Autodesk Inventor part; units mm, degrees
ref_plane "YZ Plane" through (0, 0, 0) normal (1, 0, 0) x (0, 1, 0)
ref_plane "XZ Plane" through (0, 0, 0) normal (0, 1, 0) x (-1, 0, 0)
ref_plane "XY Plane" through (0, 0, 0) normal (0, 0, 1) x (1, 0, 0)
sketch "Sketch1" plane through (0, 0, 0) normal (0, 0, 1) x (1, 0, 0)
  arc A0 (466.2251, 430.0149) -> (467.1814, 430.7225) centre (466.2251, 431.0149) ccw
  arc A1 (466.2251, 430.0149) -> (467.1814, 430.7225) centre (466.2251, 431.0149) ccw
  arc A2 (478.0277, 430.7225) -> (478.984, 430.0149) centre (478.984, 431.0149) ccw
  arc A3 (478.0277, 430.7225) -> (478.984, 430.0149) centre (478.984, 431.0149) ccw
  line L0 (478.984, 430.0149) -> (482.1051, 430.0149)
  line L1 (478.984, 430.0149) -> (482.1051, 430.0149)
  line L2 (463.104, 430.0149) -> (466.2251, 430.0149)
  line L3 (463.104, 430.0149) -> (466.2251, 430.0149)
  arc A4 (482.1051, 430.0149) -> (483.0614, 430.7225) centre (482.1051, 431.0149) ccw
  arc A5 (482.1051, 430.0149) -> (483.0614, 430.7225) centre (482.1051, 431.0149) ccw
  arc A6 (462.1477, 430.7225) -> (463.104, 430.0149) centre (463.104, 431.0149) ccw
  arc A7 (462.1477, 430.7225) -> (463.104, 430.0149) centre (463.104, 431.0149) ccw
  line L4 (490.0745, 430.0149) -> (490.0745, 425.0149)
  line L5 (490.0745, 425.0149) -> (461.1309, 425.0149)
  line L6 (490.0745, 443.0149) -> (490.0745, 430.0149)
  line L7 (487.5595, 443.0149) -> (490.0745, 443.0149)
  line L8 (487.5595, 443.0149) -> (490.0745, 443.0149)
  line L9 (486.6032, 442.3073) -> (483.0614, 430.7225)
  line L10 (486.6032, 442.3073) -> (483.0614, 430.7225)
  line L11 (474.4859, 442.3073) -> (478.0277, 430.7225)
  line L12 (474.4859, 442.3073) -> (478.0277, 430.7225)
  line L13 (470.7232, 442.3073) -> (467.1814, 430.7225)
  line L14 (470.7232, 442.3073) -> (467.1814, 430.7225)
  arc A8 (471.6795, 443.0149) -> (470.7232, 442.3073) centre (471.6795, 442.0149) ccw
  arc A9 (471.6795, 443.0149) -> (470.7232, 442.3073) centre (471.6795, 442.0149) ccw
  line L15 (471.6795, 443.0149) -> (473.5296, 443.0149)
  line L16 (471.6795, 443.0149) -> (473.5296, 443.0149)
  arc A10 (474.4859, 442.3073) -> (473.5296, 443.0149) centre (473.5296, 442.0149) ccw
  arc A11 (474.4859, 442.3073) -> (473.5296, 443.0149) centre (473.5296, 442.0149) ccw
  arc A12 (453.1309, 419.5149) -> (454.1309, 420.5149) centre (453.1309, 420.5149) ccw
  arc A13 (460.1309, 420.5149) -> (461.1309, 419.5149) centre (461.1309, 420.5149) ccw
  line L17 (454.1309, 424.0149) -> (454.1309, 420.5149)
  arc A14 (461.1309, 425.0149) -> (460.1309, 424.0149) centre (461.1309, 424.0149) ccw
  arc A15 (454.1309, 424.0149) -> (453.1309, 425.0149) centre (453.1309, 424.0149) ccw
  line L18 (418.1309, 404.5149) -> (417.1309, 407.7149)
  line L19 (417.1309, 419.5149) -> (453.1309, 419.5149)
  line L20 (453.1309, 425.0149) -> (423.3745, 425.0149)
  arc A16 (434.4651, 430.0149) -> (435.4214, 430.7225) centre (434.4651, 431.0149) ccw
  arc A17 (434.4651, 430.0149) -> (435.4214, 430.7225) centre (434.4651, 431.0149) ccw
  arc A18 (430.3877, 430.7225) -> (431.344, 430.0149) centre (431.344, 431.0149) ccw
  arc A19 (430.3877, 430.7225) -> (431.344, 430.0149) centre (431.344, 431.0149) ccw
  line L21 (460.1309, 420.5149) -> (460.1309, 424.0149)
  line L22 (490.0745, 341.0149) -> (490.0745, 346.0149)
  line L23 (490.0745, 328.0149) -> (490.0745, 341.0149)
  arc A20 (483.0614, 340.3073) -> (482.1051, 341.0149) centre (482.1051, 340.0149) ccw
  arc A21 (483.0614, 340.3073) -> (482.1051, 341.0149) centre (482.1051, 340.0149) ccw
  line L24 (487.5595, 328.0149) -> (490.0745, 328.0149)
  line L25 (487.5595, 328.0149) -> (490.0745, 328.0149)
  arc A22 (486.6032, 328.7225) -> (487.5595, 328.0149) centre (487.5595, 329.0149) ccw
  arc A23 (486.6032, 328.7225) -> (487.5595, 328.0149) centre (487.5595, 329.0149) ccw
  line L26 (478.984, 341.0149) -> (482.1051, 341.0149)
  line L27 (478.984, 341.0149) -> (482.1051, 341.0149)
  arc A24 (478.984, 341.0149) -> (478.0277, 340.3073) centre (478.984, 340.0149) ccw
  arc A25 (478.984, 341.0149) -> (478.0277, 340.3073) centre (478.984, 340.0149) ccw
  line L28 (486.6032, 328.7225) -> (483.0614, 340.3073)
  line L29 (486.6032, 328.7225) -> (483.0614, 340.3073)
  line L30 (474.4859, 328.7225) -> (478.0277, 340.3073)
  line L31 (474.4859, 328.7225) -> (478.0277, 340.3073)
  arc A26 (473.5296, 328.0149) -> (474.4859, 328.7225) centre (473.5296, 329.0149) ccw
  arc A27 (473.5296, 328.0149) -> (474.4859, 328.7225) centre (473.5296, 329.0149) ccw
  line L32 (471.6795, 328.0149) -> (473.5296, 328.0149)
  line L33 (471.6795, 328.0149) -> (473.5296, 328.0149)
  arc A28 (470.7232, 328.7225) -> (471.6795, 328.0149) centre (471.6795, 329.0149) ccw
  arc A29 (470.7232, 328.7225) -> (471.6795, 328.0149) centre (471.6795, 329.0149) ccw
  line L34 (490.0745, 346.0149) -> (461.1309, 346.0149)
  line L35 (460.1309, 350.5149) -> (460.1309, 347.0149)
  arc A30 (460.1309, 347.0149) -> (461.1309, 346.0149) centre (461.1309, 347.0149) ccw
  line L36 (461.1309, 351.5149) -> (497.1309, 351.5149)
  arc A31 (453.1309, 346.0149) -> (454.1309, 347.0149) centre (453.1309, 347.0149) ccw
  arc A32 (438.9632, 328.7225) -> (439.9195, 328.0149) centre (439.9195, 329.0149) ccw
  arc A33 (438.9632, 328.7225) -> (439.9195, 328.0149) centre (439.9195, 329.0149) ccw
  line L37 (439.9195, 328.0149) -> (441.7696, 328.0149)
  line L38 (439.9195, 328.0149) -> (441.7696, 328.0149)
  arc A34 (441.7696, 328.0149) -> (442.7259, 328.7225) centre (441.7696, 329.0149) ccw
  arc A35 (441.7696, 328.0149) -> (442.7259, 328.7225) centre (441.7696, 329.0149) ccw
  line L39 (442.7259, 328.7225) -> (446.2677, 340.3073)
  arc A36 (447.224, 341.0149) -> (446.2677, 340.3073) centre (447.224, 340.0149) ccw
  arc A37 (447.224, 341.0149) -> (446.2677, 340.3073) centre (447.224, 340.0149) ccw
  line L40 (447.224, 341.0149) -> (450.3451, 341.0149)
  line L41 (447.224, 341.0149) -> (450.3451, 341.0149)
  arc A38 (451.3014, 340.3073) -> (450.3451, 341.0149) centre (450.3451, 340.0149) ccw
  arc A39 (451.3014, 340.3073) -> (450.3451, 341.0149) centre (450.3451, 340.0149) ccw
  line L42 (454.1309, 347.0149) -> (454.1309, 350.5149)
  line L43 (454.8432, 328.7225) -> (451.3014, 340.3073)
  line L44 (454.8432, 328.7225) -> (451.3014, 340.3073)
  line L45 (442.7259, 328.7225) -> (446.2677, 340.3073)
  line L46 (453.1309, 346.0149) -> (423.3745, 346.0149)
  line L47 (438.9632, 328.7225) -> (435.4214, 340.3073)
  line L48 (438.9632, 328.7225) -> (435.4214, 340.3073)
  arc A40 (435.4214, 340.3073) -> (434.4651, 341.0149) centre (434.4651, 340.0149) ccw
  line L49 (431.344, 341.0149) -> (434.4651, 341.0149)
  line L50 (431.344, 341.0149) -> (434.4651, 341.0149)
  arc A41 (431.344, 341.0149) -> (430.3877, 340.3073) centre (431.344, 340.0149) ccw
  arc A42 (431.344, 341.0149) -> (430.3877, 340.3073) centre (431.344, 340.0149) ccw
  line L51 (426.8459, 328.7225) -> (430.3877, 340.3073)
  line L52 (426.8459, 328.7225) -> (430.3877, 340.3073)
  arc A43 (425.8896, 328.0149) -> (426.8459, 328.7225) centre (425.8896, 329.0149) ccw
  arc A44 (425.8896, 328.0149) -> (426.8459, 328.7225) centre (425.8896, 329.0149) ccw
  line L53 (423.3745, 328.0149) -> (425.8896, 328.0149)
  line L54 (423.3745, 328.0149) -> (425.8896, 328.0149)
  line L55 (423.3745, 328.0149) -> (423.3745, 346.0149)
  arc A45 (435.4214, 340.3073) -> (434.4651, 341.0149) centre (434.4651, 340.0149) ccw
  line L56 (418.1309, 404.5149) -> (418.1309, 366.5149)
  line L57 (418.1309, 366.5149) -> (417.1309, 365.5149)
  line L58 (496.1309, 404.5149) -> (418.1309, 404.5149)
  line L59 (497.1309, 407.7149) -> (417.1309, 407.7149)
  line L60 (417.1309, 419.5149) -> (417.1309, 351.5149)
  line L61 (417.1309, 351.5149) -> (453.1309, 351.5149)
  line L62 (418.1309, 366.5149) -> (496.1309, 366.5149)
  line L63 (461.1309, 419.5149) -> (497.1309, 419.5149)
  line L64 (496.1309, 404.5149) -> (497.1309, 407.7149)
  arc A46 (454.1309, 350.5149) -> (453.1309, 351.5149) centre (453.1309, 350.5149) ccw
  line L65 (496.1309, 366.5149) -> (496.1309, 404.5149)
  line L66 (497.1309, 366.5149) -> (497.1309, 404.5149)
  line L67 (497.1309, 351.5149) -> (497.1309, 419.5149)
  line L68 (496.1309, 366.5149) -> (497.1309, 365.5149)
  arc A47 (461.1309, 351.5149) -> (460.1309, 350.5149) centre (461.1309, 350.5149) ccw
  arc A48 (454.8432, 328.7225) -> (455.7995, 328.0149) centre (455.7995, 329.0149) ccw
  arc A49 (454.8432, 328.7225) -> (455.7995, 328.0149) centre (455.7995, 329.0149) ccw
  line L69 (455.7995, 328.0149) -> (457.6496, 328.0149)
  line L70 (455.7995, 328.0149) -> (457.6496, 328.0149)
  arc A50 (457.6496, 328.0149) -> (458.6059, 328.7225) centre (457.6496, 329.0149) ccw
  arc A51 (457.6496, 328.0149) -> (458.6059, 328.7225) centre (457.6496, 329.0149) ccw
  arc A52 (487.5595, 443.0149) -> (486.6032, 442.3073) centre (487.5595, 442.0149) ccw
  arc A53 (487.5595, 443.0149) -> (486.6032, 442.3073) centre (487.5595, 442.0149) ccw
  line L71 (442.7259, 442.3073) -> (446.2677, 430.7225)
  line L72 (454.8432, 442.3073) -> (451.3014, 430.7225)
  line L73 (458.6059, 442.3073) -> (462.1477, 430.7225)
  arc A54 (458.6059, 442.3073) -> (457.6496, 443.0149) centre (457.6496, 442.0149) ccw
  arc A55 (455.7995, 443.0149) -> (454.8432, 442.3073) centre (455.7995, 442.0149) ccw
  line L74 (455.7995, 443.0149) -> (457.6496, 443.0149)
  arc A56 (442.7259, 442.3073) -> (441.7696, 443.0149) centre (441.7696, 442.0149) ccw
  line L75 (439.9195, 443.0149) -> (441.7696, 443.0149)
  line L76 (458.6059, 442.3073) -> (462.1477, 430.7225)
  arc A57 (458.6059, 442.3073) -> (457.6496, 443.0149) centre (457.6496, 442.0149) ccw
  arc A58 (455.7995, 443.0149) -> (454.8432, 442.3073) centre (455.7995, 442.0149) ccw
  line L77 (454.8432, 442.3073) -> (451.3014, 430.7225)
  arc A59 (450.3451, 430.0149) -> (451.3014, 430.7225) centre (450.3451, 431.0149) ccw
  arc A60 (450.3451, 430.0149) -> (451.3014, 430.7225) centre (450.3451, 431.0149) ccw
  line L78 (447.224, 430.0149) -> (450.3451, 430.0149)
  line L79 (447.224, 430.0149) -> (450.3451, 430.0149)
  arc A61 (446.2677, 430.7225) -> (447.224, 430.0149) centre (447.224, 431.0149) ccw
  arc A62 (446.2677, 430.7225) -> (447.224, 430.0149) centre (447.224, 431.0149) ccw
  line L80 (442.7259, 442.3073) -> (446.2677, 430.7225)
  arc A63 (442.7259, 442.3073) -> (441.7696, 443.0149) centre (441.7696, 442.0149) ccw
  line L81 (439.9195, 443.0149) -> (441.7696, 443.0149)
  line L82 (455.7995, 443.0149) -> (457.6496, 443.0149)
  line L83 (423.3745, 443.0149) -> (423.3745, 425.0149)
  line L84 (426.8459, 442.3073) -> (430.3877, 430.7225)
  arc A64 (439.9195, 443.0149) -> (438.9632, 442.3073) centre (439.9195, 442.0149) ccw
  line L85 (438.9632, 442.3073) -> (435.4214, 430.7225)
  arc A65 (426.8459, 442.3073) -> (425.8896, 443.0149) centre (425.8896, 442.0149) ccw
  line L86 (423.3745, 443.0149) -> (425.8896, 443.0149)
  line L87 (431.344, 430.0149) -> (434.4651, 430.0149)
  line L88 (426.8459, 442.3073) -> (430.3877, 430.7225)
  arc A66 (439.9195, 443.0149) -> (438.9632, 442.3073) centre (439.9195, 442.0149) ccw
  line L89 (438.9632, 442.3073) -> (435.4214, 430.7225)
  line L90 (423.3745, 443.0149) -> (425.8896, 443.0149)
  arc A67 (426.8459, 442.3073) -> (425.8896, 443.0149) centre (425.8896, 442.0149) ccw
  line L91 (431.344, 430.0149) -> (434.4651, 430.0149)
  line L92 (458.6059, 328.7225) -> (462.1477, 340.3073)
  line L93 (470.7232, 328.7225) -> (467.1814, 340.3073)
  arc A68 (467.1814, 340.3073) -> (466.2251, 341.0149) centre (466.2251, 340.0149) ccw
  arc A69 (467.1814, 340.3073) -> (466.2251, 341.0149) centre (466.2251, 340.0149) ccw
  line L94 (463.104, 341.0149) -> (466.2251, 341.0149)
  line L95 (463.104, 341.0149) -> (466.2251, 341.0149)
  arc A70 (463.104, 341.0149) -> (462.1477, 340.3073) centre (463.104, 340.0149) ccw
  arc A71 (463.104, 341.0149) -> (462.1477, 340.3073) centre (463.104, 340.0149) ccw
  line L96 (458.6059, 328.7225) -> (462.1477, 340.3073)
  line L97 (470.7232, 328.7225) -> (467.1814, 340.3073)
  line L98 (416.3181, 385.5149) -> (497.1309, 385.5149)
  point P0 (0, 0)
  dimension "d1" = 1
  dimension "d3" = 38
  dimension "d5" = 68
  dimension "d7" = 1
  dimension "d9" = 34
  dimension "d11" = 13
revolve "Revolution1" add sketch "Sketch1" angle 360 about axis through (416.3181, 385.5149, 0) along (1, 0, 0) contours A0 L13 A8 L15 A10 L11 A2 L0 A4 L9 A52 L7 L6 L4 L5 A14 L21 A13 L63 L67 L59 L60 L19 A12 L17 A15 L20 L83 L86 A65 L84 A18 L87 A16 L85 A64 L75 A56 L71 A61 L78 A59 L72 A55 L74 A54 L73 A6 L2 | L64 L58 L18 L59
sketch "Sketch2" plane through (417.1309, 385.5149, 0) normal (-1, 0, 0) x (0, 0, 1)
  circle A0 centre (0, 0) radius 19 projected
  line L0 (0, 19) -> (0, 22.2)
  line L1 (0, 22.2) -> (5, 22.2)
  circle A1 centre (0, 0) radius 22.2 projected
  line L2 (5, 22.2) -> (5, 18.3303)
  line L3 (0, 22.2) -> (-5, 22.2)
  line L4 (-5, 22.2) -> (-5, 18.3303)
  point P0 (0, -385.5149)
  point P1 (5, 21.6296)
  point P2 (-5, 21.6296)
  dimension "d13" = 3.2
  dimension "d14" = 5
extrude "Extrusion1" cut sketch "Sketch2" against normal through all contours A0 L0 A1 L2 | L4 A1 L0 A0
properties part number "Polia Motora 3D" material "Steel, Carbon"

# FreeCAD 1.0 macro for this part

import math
import FreeCAD as App
import Part
import Sketcher

V = App.Vector
Q = App.Units.Quantity

doc = App.newDocument("Part")
body = doc.addObject("PartDesign::Body", "Body")

# Sketch on XY plane
sketch1 = doc.addObject("Sketcher::SketchObject", "Sketch")
body.addObject(sketch1)
sketch1.AttachmentSupport = (doc.XY_Plane, [""])
sketch1.MapMode = "FlatFace"
sketch1.addGeometry(Part.ArcOfCircle(Part.Circle(V(466.2251, 431.0149, 0), V(0, 0, 1), 1), math.radians(-90), math.radians(-17.00163)), False)
sketch1.addGeometry(Part.LineSegment(V(466.2251, 430.0149, 0), V(463.104, 430.0149, 0)), False)
sketch1.addGeometry(Part.ArcOfCircle(Part.Circle(V(463.104, 431.0149, 0), V(0, 0, 1), 1.000004), math.radians(-162.99837), math.radians(-90)), False)
sketch1.addGeometry(Part.LineSegment(V(462.1477, 430.7225, 0), V(458.6059, 442.3073, 0)), False)
sketch1.addGeometry(Part.ArcOfCircle(Part.Circle(V(457.6496, 442.0149, 0), V(0, 0, 1), 1.000004), math.radians(17.00163), math.radians(90)), False)
sketch1.addGeometry(Part.LineSegment(V(457.6496, 443.0149, 0), V(455.7995, 443.0149, 0)), False)
sketch1.addGeometry(Part.ArcOfCircle(Part.Circle(V(455.7995, 442.0149, 0), V(0, 0, 1), 1), math.radians(90), math.radians(162.99837)), False)
sketch1.addGeometry(Part.LineSegment(V(454.8432, 442.3073, 0), V(451.3014, 430.7225, 0)), False)
sketch1.addGeometry(Part.ArcOfCircle(Part.Circle(V(450.3451, 431.0149, 0), V(0, 0, 1), 1), math.radians(-90), math.radians(-17.00163)), False)
sketch1.addGeometry(Part.LineSegment(V(450.3451, 430.0149, 0), V(447.224, 430.0149, 0)), False)
sketch1.addGeometry(Part.ArcOfCircle(Part.Circle(V(447.224, 431.0149, 0), V(0, 0, 1), 1.000004), math.radians(-162.99837), math.radians(-90)), False)
sketch1.addGeometry(Part.LineSegment(V(446.2677, 430.7225, 0), V(442.7259, 442.3073, 0)), False)
sketch1.addGeometry(Part.ArcOfCircle(Part.Circle(V(441.7696, 442.0149, 0), V(0, 0, 1), 1.000004), math.radians(17.00163), math.radians(90)), False)
sketch1.addGeometry(Part.LineSegment(V(441.7696, 443.0149, 0), V(439.9195, 443.0149, 0)), False)
sketch1.addGeometry(Part.ArcOfCircle(Part.Circle(V(439.9195, 442.0149, 0), V(0, 0, 1), 1), math.radians(90), math.radians(162.99837)), False)
sketch1.addGeometry(Part.LineSegment(V(438.9632, 442.3073, 0), V(435.4214, 430.7225, 0)), False)
sketch1.addGeometry(Part.ArcOfCircle(Part.Circle(V(434.4651, 431.0149, 0), V(0, 0, 1), 1), math.radians(-90), math.radians(-17.00163)), False)
sketch1.addGeometry(Part.LineSegment(V(434.4651, 430.0149, 0), V(431.344, 430.0149, 0)), False)
sketch1.addGeometry(Part.ArcOfCircle(Part.Circle(V(431.344, 431.0149, 0), V(0, 0, 1), 1.000004), math.radians(-162.99837), math.radians(-90)), False)
sketch1.addGeometry(Part.LineSegment(V(430.3877, 430.7225, 0), V(426.8459, 442.3073, 0)), False)
sketch1.addGeometry(Part.ArcOfCircle(Part.Circle(V(425.8896, 442.0149, 0), V(0, 0, 1), 1.000004), math.radians(17.00163), math.radians(90)), False)
sketch1.addGeometry(Part.LineSegment(V(425.8896, 443.0149, 0), V(423.3745, 443.0149, 0)), False)
sketch1.addGeometry(Part.LineSegment(V(423.3745, 443.0149, 0), V(423.3745, 425.0149, 0)), False)
sketch1.addGeometry(Part.LineSegment(V(423.3745, 425.0149, 0), V(453.1309, 425.0149, 0)), False)
sketch1.addGeometry(Part.ArcOfCircle(Part.Circle(V(453.1309, 424.0149, 0), V(0, 0, 1), 1), math.radians(0), math.radians(90)), False)
sketch1.addGeometry(Part.LineSegment(V(454.1309, 424.0149, 0), V(454.1309, 420.5149, 0)), False)
sketch1.addGeometry(Part.ArcOfCircle(Part.Circle(V(453.1309, 420.5149, 0), V(0, 0, 1), 1), math.radians(-90), math.radians(0)), False)
sketch1.addGeometry(Part.LineSegment(V(453.1309, 419.5149, 0), V(417.1309, 419.5149, 0)), False)
sketch1.addGeometry(Part.LineSegment(V(417.1309, 419.5149, 0), V(417.1309, 407.7149, 0)), False)
sketch1.addGeometry(Part.LineSegment(V(417.1309, 407.7149, 0), V(418.1309, 404.5149, 0)), False)
sketch1.addGeometry(Part.LineSegment(V(418.1309, 404.5149, 0), V(496.1309, 404.5149, 0)), False)
sketch1.addGeometry(Part.LineSegment(V(496.1309, 404.5149, 0), V(497.1309, 407.7149, 0)), False)
sketch1.addGeometry(Part.LineSegment(V(497.1309, 407.7149, 0), V(497.1309, 419.5149, 0)), False)
sketch1.addGeometry(Part.LineSegment(V(497.1309, 419.5149, 0), V(461.1309, 419.5149, 0)), False)
sketch1.addGeometry(Part.ArcOfCircle(Part.Circle(V(461.1309, 420.5149, 0), V(0, 0, 1), 1), math.radians(180), math.radians(270)), False)
sketch1.addGeometry(Part.LineSegment(V(460.1309, 420.5149, 0), V(460.1309, 424.0149, 0)), False)
sketch1.addGeometry(Part.ArcOfCircle(Part.Circle(V(461.1309, 424.0149, 0), V(0, 0, 1), 1), math.radians(90), math.radians(180)), False)
sketch1.addGeometry(Part.LineSegment(V(461.1309, 425.0149, 0), V(490.0745, 425.0149, 0)), False)
sketch1.addGeometry(Part.LineSegment(V(490.0745, 425.0149, 0), V(490.0745, 443.0149, 0)), False)
sketch1.addGeometry(Part.LineSegment(V(490.0745, 443.0149, 0), V(487.5595, 443.0149, 0)), False)
sketch1.addGeometry(Part.ArcOfCircle(Part.Circle(V(487.5595, 442.0149, 0), V(0, 0, 1), 1), math.radians(90), math.radians(162.99837)), False)
sketch1.addGeometry(Part.LineSegment(V(486.6032, 442.3073, 0), V(483.0614, 430.7225, 0)), False)
sketch1.addGeometry(Part.ArcOfCircle(Part.Circle(V(482.1051, 431.0149, 0), V(0, 0, 1), 1), math.radians(-90), math.radians(-17.00163)), False)
sketch1.addGeometry(Part.LineSegment(V(482.1051, 430.0149, 0), V(478.984, 430.0149, 0)), False)
sketch1.addGeometry(Part.ArcOfCircle(Part.Circle(V(478.984, 431.0149, 0), V(0, 0, 1), 1.000004), math.radians(-162.99837), math.radians(-90)), False)
sketch1.addGeometry(Part.LineSegment(V(478.0277, 430.7225, 0), V(474.4859, 442.3073, 0)), False)
sketch1.addGeometry(Part.ArcOfCircle(Part.Circle(V(473.5296, 442.0149, 0), V(0, 0, 1), 1.000004), math.radians(17.00163), math.radians(90)), False)
sketch1.addGeometry(Part.LineSegment(V(473.5296, 443.0149, 0), V(471.6795, 443.0149, 0)), False)
sketch1.addGeometry(Part.ArcOfCircle(Part.Circle(V(471.6795, 442.0149, 0), V(0, 0, 1), 1), math.radians(90), math.radians(162.99837)), False)
sketch1.addGeometry(Part.LineSegment(V(470.7232, 442.3073, 0), V(467.1814, 430.7225, 0)), False)
sketch1.addGeometry(Part.LineSegment(V(417.1309, 385.5149, 0), V(497.1309, 385.5149, 0)), True)  # axis
sketch1.addConstraint(Sketcher.Constraint("Tangent", 0, 1, 1, 1))
sketch1.addConstraint(Sketcher.Constraint("Tangent", 1, 2, 2, 2))
sketch1.addConstraint(Sketcher.Constraint("Tangent", 2, 1, 3, 1))
sketch1.addConstraint(Sketcher.Constraint("Tangent", 3, 2, 4, 1))
sketch1.addConstraint(Sketcher.Constraint("Tangent", 4, 2, 5, 1))
sketch1.addConstraint(Sketcher.Constraint("Tangent", 5, 2, 6, 1))
sketch1.addConstraint(Sketcher.Constraint("Tangent", 6, 2, 7, 1))
sketch1.addConstraint(Sketcher.Constraint("Tangent", 7, 2, 8, 2))
sketch1.addConstraint(Sketcher.Constraint("Tangent", 8, 1, 9, 1))
sketch1.addConstraint(Sketcher.Constraint("Tangent", 9, 2, 10, 2))
sketch1.addConstraint(Sketcher.Constraint("Tangent", 10, 1, 11, 1))
sketch1.addConstraint(Sketcher.Constraint("Tangent", 11, 2, 12, 1))
sketch1.addConstraint(Sketcher.Constraint("Tangent", 12, 2, 13, 1))
sketch1.addConstraint(Sketcher.Constraint("Tangent", 13, 2, 14, 1))
sketch1.addConstraint(Sketcher.Constraint("Tangent", 14, 2, 15, 1))
sketch1.addConstraint(Sketcher.Constraint("Tangent", 15, 2, 16, 2))
sketch1.addConstraint(Sketcher.Constraint("Tangent", 16, 1, 17, 1))
sketch1.addConstraint(Sketcher.Constraint("Tangent", 17, 2, 18, 2))
sketch1.addConstraint(Sketcher.Constraint("Tangent", 18, 1, 19, 1))
sketch1.addConstraint(Sketcher.Constraint("Tangent", 19, 2, 20, 1))
sketch1.addConstraint(Sketcher.Constraint("Tangent", 20, 2, 21, 1))
sketch1.addConstraint(Sketcher.Constraint("Coincident", 21, 2, 22, 1))
sketch1.addConstraint(Sketcher.Constraint("Coincident", 22, 2, 23, 1))
sketch1.addConstraint(Sketcher.Constraint("Tangent", 23, 2, 24, 2))
sketch1.addConstraint(Sketcher.Constraint("Tangent", 24, 1, 25, 1))
sketch1.addConstraint(Sketcher.Constraint("Tangent", 25, 2, 26, 2))
sketch1.addConstraint(Sketcher.Constraint("Tangent", 26, 1, 27, 1))
sketch1.addConstraint(Sketcher.Constraint("Coincident", 27, 2, 28, 1))
sketch1.addConstraint(Sketcher.Constraint("Coincident", 28, 2, 29, 1))
sketch1.addConstraint(Sketcher.Constraint("Coincident", 29, 2, 30, 1))
sketch1.addConstraint(Sketcher.Constraint("Coincident", 30, 2, 31, 1))
sketch1.addConstraint(Sketcher.Constraint("Coincident", 31, 2, 32, 1))
sketch1.addConstraint(Sketcher.Constraint("Coincident", 32, 2, 33, 1))
sketch1.addConstraint(Sketcher.Constraint("Tangent", 33, 2, 34, 2))
sketch1.addConstraint(Sketcher.Constraint("Tangent", 34, 1, 35, 1))
sketch1.addConstraint(Sketcher.Constraint("Tangent", 35, 2, 36, 2))
sketch1.addConstraint(Sketcher.Constraint("Tangent", 36, 1, 37, 1))
sketch1.addConstraint(Sketcher.Constraint("Coincident", 37, 2, 38, 1))
sketch1.addConstraint(Sketcher.Constraint("Coincident", 38, 2, 39, 1))
sketch1.addConstraint(Sketcher.Constraint("Tangent", 39, 2, 40, 1))
sketch1.addConstraint(Sketcher.Constraint("Tangent", 40, 2, 41, 1))
sketch1.addConstraint(Sketcher.Constraint("Tangent", 41, 2, 42, 2))
sketch1.addConstraint(Sketcher.Constraint("Tangent", 42, 1, 43, 1))
sketch1.addConstraint(Sketcher.Constraint("Tangent", 43, 2, 44, 2))
sketch1.addConstraint(Sketcher.Constraint("Tangent", 44, 1, 45, 1))
sketch1.addConstraint(Sketcher.Constraint("Tangent", 45, 2, 46, 1))
sketch1.addConstraint(Sketcher.Constraint("Tangent", 46, 2, 47, 1))
sketch1.addConstraint(Sketcher.Constraint("Tangent", 47, 2, 48, 1))
sketch1.addConstraint(Sketcher.Constraint("Tangent", 48, 2, 49, 1))
sketch1.addConstraint(Sketcher.Constraint("Tangent", 49, 2, 0, 2))
sketch1.addConstraint(Sketcher.Constraint("Horizontal", 1))
sketch1.addConstraint(Sketcher.Constraint("Horizontal", 5))
sketch1.addConstraint(Sketcher.Constraint("Horizontal", 9))
sketch1.addConstraint(Sketcher.Constraint("Horizontal", 13))
sketch1.addConstraint(Sketcher.Constraint("Horizontal", 17))
sketch1.addConstraint(Sketcher.Constraint("Horizontal", 21))
sketch1.addConstraint(Sketcher.Constraint("Vertical", 22))
sketch1.addConstraint(Sketcher.Constraint("Horizontal", 23))
sketch1.addConstraint(Sketcher.Constraint("Vertical", 25))
sketch1.addConstraint(Sketcher.Constraint("Horizontal", 27))
sketch1.addConstraint(Sketcher.Constraint("Vertical", 28))
sketch1.addConstraint(Sketcher.Constraint("Horizontal", 30))
sketch1.addConstraint(Sketcher.Constraint("Vertical", 32))
sketch1.addConstraint(Sketcher.Constraint("Horizontal", 33))
sketch1.addConstraint(Sketcher.Constraint("Vertical", 35))
sketch1.addConstraint(Sketcher.Constraint("Horizontal", 37))
sketch1.addConstraint(Sketcher.Constraint("Vertical", 38))
sketch1.addConstraint(Sketcher.Constraint("Horizontal", 39))
sketch1.addConstraint(Sketcher.Constraint("Horizontal", 43))
sketch1.addConstraint(Sketcher.Constraint("Horizontal", 47))
sketch1.addConstraint(Sketcher.Constraint("Horizontal", 50))
sketch1.addConstraint(Sketcher.Constraint("Equal", 0, 2))
sketch1.addConstraint(Sketcher.Constraint("Equal", 2, 4))
sketch1.addConstraint(Sketcher.Constraint("Equal", 4, 6))
sketch1.addConstraint(Sketcher.Constraint("Equal", 6, 8))
sketch1.addConstraint(Sketcher.Constraint("Equal", 8, 10))
sketch1.addConstraint(Sketcher.Constraint("Equal", 10, 12))
sketch1.addConstraint(Sketcher.Constraint("Equal", 12, 14))
sketch1.addConstraint(Sketcher.Constraint("Equal", 14, 16))
sketch1.addConstraint(Sketcher.Constraint("Equal", 16, 18))
sketch1.addConstraint(Sketcher.Constraint("Equal", 18, 20))
sketch1.addConstraint(Sketcher.Constraint("Equal", 20, 24))
sketch1.addConstraint(Sketcher.Constraint("Equal", 24, 26))
sketch1.addConstraint(Sketcher.Constraint("Equal", 26, 34))
sketch1.addConstraint(Sketcher.Constraint("Equal", 34, 36))
sketch1.addConstraint(Sketcher.Constraint("Equal", 36, 40))
sketch1.addConstraint(Sketcher.Constraint("Equal", 40, 42))
sketch1.addConstraint(Sketcher.Constraint("Equal", 42, 44))
sketch1.addConstraint(Sketcher.Constraint("Equal", 44, 46))
sketch1.addConstraint(Sketcher.Constraint("Equal", 46, 48))
sketch1.addConstraint(Sketcher.Constraint("Parallel", 3, 11))
sketch1.addConstraint(Sketcher.Constraint("Parallel", 7, 15))
sketch1.addConstraint(Sketcher.Constraint("Parallel", 11, 19))
sketch1.addConstraint(Sketcher.Constraint("Parallel", 15, 41))
sketch1.addConstraint(Sketcher.Constraint("Parallel", 19, 45))
sketch1.addConstraint(Sketcher.Constraint("Parallel", 41, 49))
sketch1.addConstraint(Sketcher.Constraint("Horizontal", 2, 3, 8, 3))
sketch1.addConstraint(Sketcher.Constraint("Horizontal", 6, 3, 12, 3))
sketch1.addConstraint(Sketcher.Constraint("Horizontal", 10, 3, 16, 3))
sketch1.addConstraint(Sketcher.Constraint("Horizontal", 14, 3, 20, 3))
sketch1.addConstraint(Sketcher.Constraint("Horizontal", 26, 3, 34, 3))
sketch1.addConstraint(Sketcher.Constraint("Horizontal", 24, 3, 36, 3))
sketch1.addConstraint(Sketcher.Constraint("Horizontal", 20, 3, 40, 3))
sketch1.addConstraint(Sketcher.Constraint("Horizontal", 18, 3, 42, 3))
sketch1.addConstraint(Sketcher.Constraint("Horizontal", 40, 3, 46, 3))
sketch1.addConstraint(Sketcher.Constraint("Horizontal", 3, 2, 6, 2))
sketch1.addConstraint(Sketcher.Constraint("Horizontal", 28, 2, 31, 2))
sketch1.addConstraint(Sketcher.Constraint("Vertical", 28, 2, 50, 1))
sketch1.addConstraint(Sketcher.Constraint("Vertical", 32, 2, 50, 2))
sketch1.addConstraint(Sketcher.Constraint("Equal", 1, 9))
sketch1.addConstraint(Sketcher.Constraint("Equal", 5, 13))
sketch1.addConstraint(Sketcher.Constraint("Equal", 9, 17))
sketch1.addConstraint(Sketcher.Constraint("Equal", 27, 33))
sketch1.addConstraint(Sketcher.Constraint("Equal", 21, 39))
sketch1.addConstraint(Sketcher.Constraint("Equal", 17, 43))
sketch1.addConstraint(Sketcher.Constraint("Equal", 13, 47))
sketch1.addConstraint(Sketcher.Constraint("Equal", 29, 31))
sketch1.addConstraint(Sketcher.Constraint("Radius", 0, 1.0))
sketch1.addConstraint(Sketcher.Constraint("DistanceX", 27, 2, 27, 1, 36.0))
sketch1.addConstraint(Sketcher.Constraint("DistanceX", 30, 1, 30, 2, 78.0))
sketch1.addConstraint(Sketcher.Constraint("DistanceX", 50, 1, 50, 2, 80.0))
sketch1.addConstraint(Sketcher.Constraint("DistanceY", 22, 2, 22, 1, 18.0))
sketch1.addConstraint(Sketcher.Constraint("Angle", 3, Q("106.9999 deg")))
sketch1.addConstraint(Sketcher.Constraint("DistanceY", 25, 2, 25, 1, 3.5))
sketch1.addConstraint(Sketcher.Constraint("DistanceY", 28, 2, 28, 1, 11.8))
sketch1.addConstraint(Sketcher.Constraint("DistanceX", 5, 2, 5, 1, 1.85))
sketch1.addConstraint(Sketcher.Constraint("DistanceX", 1, 2, 1, 1, 3.121))
sketch1.addConstraint(Sketcher.Constraint("DistanceX", 21, 2, 21, 1, 2.515))
sketch1.addConstraint(Sketcher.Constraint("DistanceX", 23, 1, 23, 2, 29.7564))
sketch1.addConstraint(Sketcher.Constraint("DistanceX", 37, 1, 37, 2, 28.9436))
sketch1.addConstraint(Sketcher.Constraint("DistanceX", -1, 1, 0, 3, 466.225))
sketch1.addConstraint(Sketcher.Constraint("DistanceY", -1, 1, 0, 3, 431.015))
sketch1.addConstraint(Sketcher.Constraint("DistanceY", -1, 1, 29, 2, 404.515))
sketch1.addConstraint(Sketcher.Constraint("DistanceY", -1, 1, 50, 1, 385.515))
revolution = doc.addObject("PartDesign::Revolution", "Revolution")
body.addObject(revolution)
revolution.Profile = sketch1
revolution.ReferenceAxis = (sketch1, ["Axis0"])
revolution.Angle = 360

# Sketch on YZ plane
sketch2 = doc.addObject("Sketcher::SketchObject", "Sketch001")
body.addObject(sketch2)
sketch2.AttachmentSupport = (doc.YZ_Plane, [""])
sketch2.MapMode = "FlatFace"
sketch2.AttachmentOffset = App.Placement(V(0, 0, 417.1309), App.Rotation())
sketch2.addGeometry(Part.LineSegment(V(403.8452, 5, 0), V(407.144509, 5, 0)), False)
sketch2.addGeometry(Part.ArcOfCircle(Part.Circle(V(385.5149, 0, 0), V(0, 0, 1), 22.2), math.radians(-13.016123), math.radians(13.016123)), False)
sketch2.addGeometry(Part.LineSegment(V(407.144509, -5, 0), V(403.8452, -5, 0)), False)
sketch2.addGeometry(Part.ArcOfCircle(Part.Circle(V(385.5149, 0, 0), V(0, 0, 1), 19), math.radians(-15.257525), math.radians(15.257525)), False)
sketch2.addConstraint(Sketcher.Constraint("Coincident", 0, 2, 1, 2))
sketch2.addConstraint(Sketcher.Constraint("Coincident", 1, 1, 2, 1))
sketch2.addConstraint(Sketcher.Constraint("Coincident", 2, 2, 3, 1))
sketch2.addConstraint(Sketcher.Constraint("Coincident", 3, 2, 0, 1))
sketch2.addConstraint(Sketcher.Constraint("Horizontal", 0))
sketch2.addConstraint(Sketcher.Constraint("Horizontal", 2))
sketch2.addConstraint(Sketcher.Constraint("Coincident", 3, 3, 1, 3))
sketch2.addConstraint(Sketcher.Constraint("Symmetric", 0, 2, 1, 1, -1))
sketch2.addConstraint(Sketcher.Constraint("DistanceY", -1, 1, 0, 2, 5.0))
sketch2.addConstraint(Sketcher.Constraint("Radius", 3, 19.0))
sketch2.addConstraint(Sketcher.Constraint("Radius", 1, 22.2))
sketch2.addConstraint(Sketcher.Constraint("DistanceX", -1, 1, 1, 3, 385.515))
pocket1 = doc.addObject("PartDesign::Pocket", "Pocket")
body.addObject(pocket1)
pocket1.Profile = sketch2
pocket1.Type = "ThroughAll"
pocket1.Reversed = True

doc.recompute()
